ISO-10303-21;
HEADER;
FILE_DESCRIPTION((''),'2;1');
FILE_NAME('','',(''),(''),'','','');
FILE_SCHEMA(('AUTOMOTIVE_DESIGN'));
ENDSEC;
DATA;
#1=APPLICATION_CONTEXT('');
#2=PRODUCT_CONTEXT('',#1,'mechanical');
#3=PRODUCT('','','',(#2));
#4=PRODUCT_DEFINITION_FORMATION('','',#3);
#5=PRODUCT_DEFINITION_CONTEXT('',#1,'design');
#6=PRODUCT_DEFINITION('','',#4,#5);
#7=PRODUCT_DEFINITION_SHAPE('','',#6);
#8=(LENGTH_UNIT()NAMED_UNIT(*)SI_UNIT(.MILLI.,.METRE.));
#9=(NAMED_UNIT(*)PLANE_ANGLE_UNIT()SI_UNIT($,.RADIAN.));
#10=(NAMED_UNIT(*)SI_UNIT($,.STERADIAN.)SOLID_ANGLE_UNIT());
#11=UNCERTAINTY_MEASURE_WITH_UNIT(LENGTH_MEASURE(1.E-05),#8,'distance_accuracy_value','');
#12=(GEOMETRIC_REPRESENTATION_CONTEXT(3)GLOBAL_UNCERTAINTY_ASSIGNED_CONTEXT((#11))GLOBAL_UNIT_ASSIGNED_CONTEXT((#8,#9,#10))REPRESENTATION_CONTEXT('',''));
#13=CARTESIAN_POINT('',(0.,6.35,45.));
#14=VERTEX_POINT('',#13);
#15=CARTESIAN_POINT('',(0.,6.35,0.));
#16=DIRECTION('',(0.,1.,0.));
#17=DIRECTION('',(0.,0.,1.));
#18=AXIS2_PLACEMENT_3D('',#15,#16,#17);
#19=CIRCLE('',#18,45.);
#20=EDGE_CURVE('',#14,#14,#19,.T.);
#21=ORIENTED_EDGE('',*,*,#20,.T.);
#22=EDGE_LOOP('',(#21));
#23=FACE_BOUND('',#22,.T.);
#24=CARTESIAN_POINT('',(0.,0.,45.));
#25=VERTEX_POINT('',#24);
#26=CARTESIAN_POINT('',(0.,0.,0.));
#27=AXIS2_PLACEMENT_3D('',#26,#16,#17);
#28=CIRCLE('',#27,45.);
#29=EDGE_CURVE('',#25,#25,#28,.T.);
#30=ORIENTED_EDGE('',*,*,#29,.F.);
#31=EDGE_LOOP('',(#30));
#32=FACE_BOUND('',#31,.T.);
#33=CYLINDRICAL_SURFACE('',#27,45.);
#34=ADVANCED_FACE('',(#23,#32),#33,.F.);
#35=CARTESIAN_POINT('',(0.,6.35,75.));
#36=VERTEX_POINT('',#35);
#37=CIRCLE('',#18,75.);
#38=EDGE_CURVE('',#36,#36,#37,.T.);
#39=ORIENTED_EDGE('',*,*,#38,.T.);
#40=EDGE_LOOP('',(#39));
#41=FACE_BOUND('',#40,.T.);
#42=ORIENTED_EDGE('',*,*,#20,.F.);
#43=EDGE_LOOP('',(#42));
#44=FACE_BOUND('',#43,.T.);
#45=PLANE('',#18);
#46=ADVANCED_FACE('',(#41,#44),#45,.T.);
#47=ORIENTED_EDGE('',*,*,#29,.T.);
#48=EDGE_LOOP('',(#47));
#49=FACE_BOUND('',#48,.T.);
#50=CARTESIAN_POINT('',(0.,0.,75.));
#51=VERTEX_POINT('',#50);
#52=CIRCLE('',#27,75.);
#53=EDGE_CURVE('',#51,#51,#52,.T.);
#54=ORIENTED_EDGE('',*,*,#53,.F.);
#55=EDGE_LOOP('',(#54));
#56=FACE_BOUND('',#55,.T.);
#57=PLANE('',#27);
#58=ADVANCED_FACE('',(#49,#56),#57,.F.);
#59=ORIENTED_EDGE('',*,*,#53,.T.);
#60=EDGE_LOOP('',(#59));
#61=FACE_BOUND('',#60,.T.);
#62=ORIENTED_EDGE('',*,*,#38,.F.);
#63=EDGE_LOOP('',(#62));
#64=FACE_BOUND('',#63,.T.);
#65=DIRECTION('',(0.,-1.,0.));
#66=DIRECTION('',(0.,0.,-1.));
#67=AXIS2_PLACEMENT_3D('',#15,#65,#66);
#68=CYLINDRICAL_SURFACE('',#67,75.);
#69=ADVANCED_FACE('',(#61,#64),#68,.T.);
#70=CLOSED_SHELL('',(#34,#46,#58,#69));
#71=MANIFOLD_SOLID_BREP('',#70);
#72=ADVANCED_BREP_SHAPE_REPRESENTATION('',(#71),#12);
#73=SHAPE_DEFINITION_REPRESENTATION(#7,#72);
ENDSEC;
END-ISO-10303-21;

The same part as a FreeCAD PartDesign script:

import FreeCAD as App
import Part
import Sketcher

doc = App.newDocument("Part")
params = doc.addObject("Spreadsheet::Sheet", "Params")
for row, (alias, value) in enumerate([
    ("sketch1_diameter", "150 mm"),
    ("pad1_length", "6.35 mm"),
    ("sketch2_diameter", "90 mm"),
], start=1):
    params.set(f"A{row}", alias)
    params.set(f"B{row}", "=" + value)
    params.setAlias(f"B{row}", alias)

body = doc.addObject("PartDesign::Body", "Body")

# Sketch on XZ plane
sketch1 = body.newObject("Sketcher::SketchObject", "Sketch")
sketch1.AttachmentSupport = (doc.getObject("XZ_Plane"), [""])
sketch1.MapMode = "FlatFace"
sketch1.addGeometry(Part.Circle(App.Vector(0, 0, 0), App.Vector(0, 0, 1), 75), False)
sketch1.addConstraint([
    Sketcher.Constraint("Coincident", 0, 3, -1, 1),
    Sketcher.Constraint("Diameter", 0, 150.0),
])
sketch1.setExpression("Constraints[1]", "Params.sketch1_diameter")
pad1 = body.newObject("PartDesign::Pad", "Pad")
pad1.Profile = sketch1
pad1.setExpression("Length", "Params.pad1_length")
pad1.Reversed = True

# Sketch on XZ plane
sketch2 = body.newObject("Sketcher::SketchObject", "Sketch001")
sketch2.AttachmentSupport = (doc.getObject("XZ_Plane"), [""])
sketch2.MapMode = "FlatFace"
sketch2.AttachmentOffset = App.Placement(App.Vector(0, 0, -6.35), App.Rotation())
sketch2.addGeometry(Part.Circle(App.Vector(0, 0, 0), App.Vector(0, 0, 1), 45), False)
sketch2.addConstraint([
    Sketcher.Constraint("Coincident", 0, 3, -1, 1),
    Sketcher.Constraint("Diameter", 0, 90.0),
])
sketch2.setExpression("Constraints[1]", "Params.sketch2_diameter")
pocket1 = body.newObject("PartDesign::Pocket", "Pocket")
pocket1.Profile = sketch2
pocket1.Type = "ThroughAll"
pocket1.Reversed = True

doc.recompute()
